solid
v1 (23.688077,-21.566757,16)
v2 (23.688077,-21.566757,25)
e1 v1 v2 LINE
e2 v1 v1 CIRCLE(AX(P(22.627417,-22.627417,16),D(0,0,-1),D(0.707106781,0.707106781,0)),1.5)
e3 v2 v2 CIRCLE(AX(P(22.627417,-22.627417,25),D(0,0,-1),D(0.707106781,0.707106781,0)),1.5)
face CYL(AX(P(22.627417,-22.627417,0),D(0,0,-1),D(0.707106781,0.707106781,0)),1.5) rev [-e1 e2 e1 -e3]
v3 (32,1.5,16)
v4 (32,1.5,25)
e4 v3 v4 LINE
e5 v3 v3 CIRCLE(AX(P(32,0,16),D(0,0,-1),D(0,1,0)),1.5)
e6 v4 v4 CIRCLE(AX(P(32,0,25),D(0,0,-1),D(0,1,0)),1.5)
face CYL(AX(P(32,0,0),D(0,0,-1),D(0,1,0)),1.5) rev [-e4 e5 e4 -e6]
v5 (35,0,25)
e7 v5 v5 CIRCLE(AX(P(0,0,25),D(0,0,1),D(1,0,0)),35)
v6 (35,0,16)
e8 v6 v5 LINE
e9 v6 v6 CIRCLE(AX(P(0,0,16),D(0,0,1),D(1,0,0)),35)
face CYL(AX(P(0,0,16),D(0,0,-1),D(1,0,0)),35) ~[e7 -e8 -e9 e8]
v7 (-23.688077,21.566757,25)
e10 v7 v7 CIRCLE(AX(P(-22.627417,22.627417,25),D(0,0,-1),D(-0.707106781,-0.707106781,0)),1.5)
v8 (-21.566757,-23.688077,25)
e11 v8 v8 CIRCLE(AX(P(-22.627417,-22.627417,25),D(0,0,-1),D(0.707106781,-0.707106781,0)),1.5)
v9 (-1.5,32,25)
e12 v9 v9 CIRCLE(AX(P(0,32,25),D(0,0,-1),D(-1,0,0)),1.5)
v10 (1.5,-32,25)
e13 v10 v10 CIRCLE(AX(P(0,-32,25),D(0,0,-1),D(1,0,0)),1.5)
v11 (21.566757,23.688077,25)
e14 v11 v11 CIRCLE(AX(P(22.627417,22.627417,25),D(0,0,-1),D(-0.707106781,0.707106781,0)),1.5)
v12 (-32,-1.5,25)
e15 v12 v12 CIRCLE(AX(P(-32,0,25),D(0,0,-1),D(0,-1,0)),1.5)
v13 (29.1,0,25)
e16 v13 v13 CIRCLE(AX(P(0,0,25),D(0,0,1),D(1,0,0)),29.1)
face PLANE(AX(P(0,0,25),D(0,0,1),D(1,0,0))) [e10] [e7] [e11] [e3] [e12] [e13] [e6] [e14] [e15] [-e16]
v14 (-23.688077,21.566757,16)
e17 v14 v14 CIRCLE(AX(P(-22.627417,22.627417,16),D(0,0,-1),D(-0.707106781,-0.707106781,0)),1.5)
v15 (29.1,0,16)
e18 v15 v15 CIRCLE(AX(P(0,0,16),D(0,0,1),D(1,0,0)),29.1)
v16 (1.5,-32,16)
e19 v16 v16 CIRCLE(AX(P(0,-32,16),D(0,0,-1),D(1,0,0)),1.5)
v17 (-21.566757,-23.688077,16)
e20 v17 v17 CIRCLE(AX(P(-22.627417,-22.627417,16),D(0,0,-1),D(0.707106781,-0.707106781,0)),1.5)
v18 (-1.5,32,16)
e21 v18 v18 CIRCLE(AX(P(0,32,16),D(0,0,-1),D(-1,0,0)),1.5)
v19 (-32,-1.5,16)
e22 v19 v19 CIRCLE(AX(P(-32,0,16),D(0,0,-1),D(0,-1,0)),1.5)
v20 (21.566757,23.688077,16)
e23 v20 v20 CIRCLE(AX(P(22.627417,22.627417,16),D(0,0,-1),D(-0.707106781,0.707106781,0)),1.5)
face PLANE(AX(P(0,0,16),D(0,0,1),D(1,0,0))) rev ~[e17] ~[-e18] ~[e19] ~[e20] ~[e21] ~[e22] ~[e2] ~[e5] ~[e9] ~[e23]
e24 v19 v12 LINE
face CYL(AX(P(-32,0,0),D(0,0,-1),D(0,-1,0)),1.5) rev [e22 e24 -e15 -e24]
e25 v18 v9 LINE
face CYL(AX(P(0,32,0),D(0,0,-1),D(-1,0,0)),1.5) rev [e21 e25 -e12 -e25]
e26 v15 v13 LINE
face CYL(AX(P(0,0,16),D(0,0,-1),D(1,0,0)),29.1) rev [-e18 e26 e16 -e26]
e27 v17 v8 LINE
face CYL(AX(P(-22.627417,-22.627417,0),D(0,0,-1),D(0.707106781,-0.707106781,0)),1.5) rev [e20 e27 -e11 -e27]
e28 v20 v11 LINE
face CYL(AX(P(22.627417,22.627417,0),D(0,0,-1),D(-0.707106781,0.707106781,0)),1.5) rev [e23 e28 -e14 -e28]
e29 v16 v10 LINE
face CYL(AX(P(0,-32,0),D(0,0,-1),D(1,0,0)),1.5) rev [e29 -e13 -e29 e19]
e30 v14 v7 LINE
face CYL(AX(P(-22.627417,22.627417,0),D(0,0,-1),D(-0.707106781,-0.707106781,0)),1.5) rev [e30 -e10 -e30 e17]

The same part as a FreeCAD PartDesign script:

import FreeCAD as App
import Part
import Sketcher
from FreeCAD import Vector

doc = App.newDocument("Part")
body = doc.addObject("PartDesign::Body", "Body")

# Sketch on XY plane
sketch1 = body.newObject("Sketcher::SketchObject", "Sketch")
sketch1.AttachmentSupport = (doc.getObject("XY_Plane"), [""])
sketch1.MapMode = "FlatFace"
sketch1.addGeometry(Part.Circle(Vector(0, 0, 0), Vector(0, 0, 1), 1.5), False)
sketch1.addConstraint([
    Sketcher.Constraint("Coincident", 0, 3, -1, 1),
    Sketcher.Constraint("Diameter", 0, 3.0),
])
pad1 = body.newObject("PartDesign::Pad", "Pad")
pad1.Profile = sketch1
pad1.Length = 30
body2 = doc.addObject("PartDesign::Body", "Body001")
doc.recompute()

body.Placement = App.Placement(Vector(22.627417, -22.627417, 0), App.Rotation(Vector(0, 0, 1), 45))
boolean = body2.newObject("PartDesign::Boolean", "Boolean")
boolean.Type = "Fuse"
boolean.addObjects([body])
body3 = doc.addObject("PartDesign::Body", "Body002")

# Sketch on XY plane
sketch2 = body3.newObject("Sketcher::SketchObject", "Sketch001")
sketch2.AttachmentSupport = (doc.getObject("XY_Plane002"), [""])
sketch2.MapMode = "FlatFace"
sketch2.addGeometry(Part.Circle(Vector(32, 0, 0), Vector(0, 0, 1), 1.5), False)
sketch2.addConstraint([
    Sketcher.Constraint("PointOnObject", 0, 3, -1),
    Sketcher.Constraint("Diameter", 0, 3.0),
    Sketcher.Constraint("DistanceX", -1, 1, 0, 3, 32.0),
])
pad2 = body3.newObject("PartDesign::Pad", "Pad001")
pad2.Profile = sketch2
pad2.Length = 30
body4 = doc.addObject("PartDesign::Body", "Body003")

# Sketch on XY plane
sketch3 = body4.newObject("Sketcher::SketchObject", "Sketch002")
sketch3.AttachmentSupport = (doc.getObject("XY_Plane003"), [""])
sketch3.MapMode = "FlatFace"
sketch3.addGeometry(Part.Circle(Vector(0, 0, 0), Vector(0, 0, 1), 1.5), False)
sketch3.addConstraint([
    Sketcher.Constraint("Coincident", 0, 3, -1, 1),
    Sketcher.Constraint("Diameter", 0, 3.0),
])
pad3 = body4.newObject("PartDesign::Pad", "Pad002")
pad3.Profile = sketch3
pad3.Length = 30
body5 = doc.addObject("PartDesign::Body", "Body004")
doc.recompute()

body4.Placement = App.Placement(Vector(22.627417, 22.627417, 0), App.Rotation(Vector(0, 0, 1), 135))
boolean2 = body5.newObject("PartDesign::Boolean", "Boolean001")
boolean2.Type = "Fuse"
boolean2.addObjects([body4])
body6 = doc.addObject("PartDesign::Body", "Body005")

# Sketch on XY plane
sketch4 = body6.newObject("Sketcher::SketchObject", "Sketch003")
sketch4.AttachmentSupport = (doc.getObject("XY_Plane005"), [""])
sketch4.MapMode = "FlatFace"
sketch4.addGeometry(Part.Circle(Vector(0, 32, 0), Vector(0, 0, 1), 1.5), False)
sketch4.addConstraint([
    Sketcher.Constraint("PointOnObject", 0, 3, -2),
    Sketcher.Constraint("Diameter", 0, 3.0),
    Sketcher.Constraint("DistanceY", -1, 1, 0, 3, 32.0),
])
pad4 = body6.newObject("PartDesign::Pad", "Pad003")
pad4.Profile = sketch4
pad4.Length = 30
body7 = doc.addObject("PartDesign::Body", "Body006")

# Sketch on XY plane
sketch5 = body7.newObject("Sketcher::SketchObject", "Sketch004")
sketch5.AttachmentSupport = (doc.getObject("XY_Plane006"), [""])
sketch5.MapMode = "FlatFace"
sketch5.addGeometry(Part.Circle(Vector(0, 0, 0), Vector(0, 0, 1), 1.5), False)
sketch5.addConstraint([
    Sketcher.Constraint("Coincident", 0, 3, -1, 1),
    Sketcher.Constraint("Diameter", 0, 3.0),
])
pad5 = body7.newObject("PartDesign::Pad", "Pad004")
pad5.Profile = sketch5
pad5.Length = 30
body8 = doc.addObject("PartDesign::Body", "Body007")
doc.recompute()

body7.Placement = App.Placement(Vector(-22.627417, 22.627417, 0), App.Rotation(Vector(0, 0, 1), 225))
boolean3 = body8.newObject("PartDesign::Boolean", "Boolean002")
boolean3.Type = "Fuse"
boolean3.addObjects([body7])
body9 = doc.addObject("PartDesign::Body", "Body008")

# Sketch on XY plane
sketch6 = body9.newObject("Sketcher::SketchObject", "Sketch005")
sketch6.AttachmentSupport = (doc.getObject("XY_Plane008"), [""])
sketch6.MapMode = "FlatFace"
sketch6.addGeometry(Part.Circle(Vector(-32, 0, 0), Vector(0, 0, 1), 1.5), False)
sketch6.addConstraint([
    Sketcher.Constraint("PointOnObject", 0, 3, -1),
    Sketcher.Constraint("Diameter", 0, 3.0),
    Sketcher.Constraint("DistanceX", 0, 3, -1, 1, 32.0),
])
pad6 = body9.newObject("PartDesign::Pad", "Pad005")
pad6.Profile = sketch6
pad6.Length = 30
body10 = doc.addObject("PartDesign::Body", "Body009")

# Sketch on XY plane
sketch7 = body10.newObject("Sketcher::SketchObject", "Sketch006")
sketch7.AttachmentSupport = (doc.getObject("XY_Plane009"), [""])
sketch7.MapMode = "FlatFace"
sketch7.addGeometry(Part.Circle(Vector(0, 0, 0), Vector(0, 0, 1), 1.5), False)
sketch7.addConstraint([
    Sketcher.Constraint("Coincident", 0, 3, -1, 1),
    Sketcher.Constraint("Diameter", 0, 3.0),
])
pad7 = body10.newObject("PartDesign::Pad", "Pad006")
pad7.Profile = sketch7
pad7.Length = 30
body11 = doc.addObject("PartDesign::Body", "Body010")
doc.recompute()

body10.Placement = App.Placement(Vector(-22.627417, -22.627417, 0), App.Rotation(Vector(0, 0, -1), 45))
boolean4 = body11.newObject("PartDesign::Boolean", "Boolean003")
boolean4.Type = "Fuse"
boolean4.addObjects([body10])
body12 = doc.addObject("PartDesign::Body", "Body011")
body12.AllowCompound = True

# Sketch on XY plane
sketch8 = body12.newObject("Sketcher::SketchObject", "Sketch007")
sketch8.AttachmentSupport = (doc.getObject("XY_Plane011"), [""])
sketch8.MapMode = "FlatFace"
sketch8.addGeometry(Part.Circle(Vector(0, -32, 0), Vector(0, 0, 1), 1.5), False)
sketch8.addConstraint([
    Sketcher.Constraint("PointOnObject", 0, 3, -2),
    Sketcher.Constraint("Diameter", 0, 3.0),
    Sketcher.Constraint("DistanceY", 0, 3, -1, 1, 32.0),
])
pad8 = body12.newObject("PartDesign::Pad", "Pad007")
pad8.Profile = sketch8
pad8.Length = 30
doc.recompute()

boolean5 = body12.newObject("PartDesign::Boolean", "Boolean004")
boolean5.Type = "Fuse"
boolean5.addObjects([body2])
doc.recompute()

boolean6 = body12.newObject("PartDesign::Boolean", "Boolean005")
boolean6.Type = "Fuse"
boolean6.addObjects([body3])
doc.recompute()

boolean7 = body12.newObject("PartDesign::Boolean", "Boolean006")
boolean7.Type = "Fuse"
boolean7.addObjects([body5])
doc.recompute()

boolean8 = body12.newObject("PartDesign::Boolean", "Boolean007")
boolean8.Type = "Fuse"
boolean8.addObjects([body6])
doc.recompute()

boolean9 = body12.newObject("PartDesign::Boolean", "Boolean008")
boolean9.Type = "Fuse"
boolean9.addObjects([body8])
doc.recompute()

boolean10 = body12.newObject("PartDesign::Boolean", "Boolean009")
boolean10.Type = "Fuse"
boolean10.addObjects([body9])
doc.recompute()

boolean11 = body12.newObject("PartDesign::Boolean", "Boolean010")
boolean11.Type = "Fuse"
boolean11.addObjects([body11])
body13 = doc.addObject("PartDesign::Body", "Body012")

# Sketch on XY plane
sketch9 = body13.newObject("Sketcher::SketchObject", "Sketch008")
sketch9.AttachmentSupport = (doc.getObject("XY_Plane012"), [""])
sketch9.MapMode = "FlatFace"
sketch9.AttachmentOffset = App.Placement(Vector(0, 0, 16), App.Rotation())
sketch9.addGeometry([
    Part.Circle(Vector(0, 0, 0), Vector(0, 0, 1), 35),
    Part.Circle(Vector(0, 0, 0), Vector(0, 0, 1), 29),
], False)
sketch9.addConstraint([
    Sketcher.Constraint("Coincident", 0, 3, -1, 1),
    Sketcher.Constraint("Coincident", 1, 3, -1, 1),
    Sketcher.Constraint("Diameter", 0, 70.0),
    Sketcher.Constraint("Diameter", 1, 58.2),
])
pad9 = body13.newObject("PartDesign::Pad", "Pad008")
pad9.Profile = sketch9
pad9.Length = 9
doc.recompute()

boolean12 = body13.newObject("PartDesign::Boolean", "Boolean011")
boolean12.Type = "Cut"
boolean12.addObjects([body12])

doc.recompute()
